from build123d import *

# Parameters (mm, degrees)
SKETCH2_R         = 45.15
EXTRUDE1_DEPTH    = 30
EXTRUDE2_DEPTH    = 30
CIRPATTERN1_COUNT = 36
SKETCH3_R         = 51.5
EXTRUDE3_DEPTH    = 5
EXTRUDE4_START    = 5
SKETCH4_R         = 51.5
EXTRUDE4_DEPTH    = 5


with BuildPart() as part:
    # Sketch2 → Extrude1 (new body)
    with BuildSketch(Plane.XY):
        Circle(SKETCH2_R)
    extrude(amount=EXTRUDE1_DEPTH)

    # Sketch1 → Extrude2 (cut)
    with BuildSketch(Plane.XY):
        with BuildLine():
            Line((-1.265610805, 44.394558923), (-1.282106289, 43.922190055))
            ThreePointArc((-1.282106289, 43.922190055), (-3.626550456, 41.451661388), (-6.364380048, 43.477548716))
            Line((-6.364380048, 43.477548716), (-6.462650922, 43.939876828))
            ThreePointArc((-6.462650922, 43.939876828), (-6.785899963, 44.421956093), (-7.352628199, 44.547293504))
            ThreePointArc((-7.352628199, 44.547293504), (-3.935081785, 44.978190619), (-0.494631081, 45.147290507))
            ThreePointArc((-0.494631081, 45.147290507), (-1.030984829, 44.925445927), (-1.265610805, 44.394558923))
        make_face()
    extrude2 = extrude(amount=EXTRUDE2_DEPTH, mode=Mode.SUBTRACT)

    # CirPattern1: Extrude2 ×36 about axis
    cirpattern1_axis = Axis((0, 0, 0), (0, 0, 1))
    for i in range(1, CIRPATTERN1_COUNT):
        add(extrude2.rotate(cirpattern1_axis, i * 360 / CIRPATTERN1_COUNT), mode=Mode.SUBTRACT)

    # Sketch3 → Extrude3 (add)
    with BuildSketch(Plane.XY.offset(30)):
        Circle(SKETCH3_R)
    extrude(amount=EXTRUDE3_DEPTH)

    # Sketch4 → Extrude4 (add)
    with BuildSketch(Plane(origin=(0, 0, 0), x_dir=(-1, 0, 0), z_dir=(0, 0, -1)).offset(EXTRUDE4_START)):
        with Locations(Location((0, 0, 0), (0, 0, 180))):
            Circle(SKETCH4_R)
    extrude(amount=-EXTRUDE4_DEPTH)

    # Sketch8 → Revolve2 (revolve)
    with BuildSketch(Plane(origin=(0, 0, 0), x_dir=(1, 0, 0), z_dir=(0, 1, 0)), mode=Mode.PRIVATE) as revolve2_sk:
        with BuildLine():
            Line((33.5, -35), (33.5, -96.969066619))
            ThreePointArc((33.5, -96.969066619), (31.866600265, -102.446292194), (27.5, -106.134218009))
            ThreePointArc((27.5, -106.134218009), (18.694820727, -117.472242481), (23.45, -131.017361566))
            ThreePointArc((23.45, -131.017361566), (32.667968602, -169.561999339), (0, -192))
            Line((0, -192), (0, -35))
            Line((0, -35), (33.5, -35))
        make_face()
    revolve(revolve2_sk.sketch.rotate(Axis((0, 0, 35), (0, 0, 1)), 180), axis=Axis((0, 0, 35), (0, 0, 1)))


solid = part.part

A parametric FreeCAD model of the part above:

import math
import FreeCAD as App
import Part
import Sketcher

V = App.Vector
Q = App.Units.Quantity

doc = App.newDocument("Part")
body = doc.addObject("PartDesign::Body", "Body")

# Sketch on XY plane
sketch1 = doc.addObject("Sketcher::SketchObject", "Sketch")
body.addObject(sketch1)
sketch1.AttachmentSupport = (doc.XY_Plane, [""])
sketch1.MapMode = "FlatFace"
sketch1.addGeometry(Part.Circle(V(0, 0, 0), V(0, 0, 1), 45.15), False)
sketch1.addConstraint([
    Sketcher.Constraint("Coincident", 0, 3, -1, 1),
    Sketcher.Constraint("Diameter", 0, 90.3),
])
pad1 = doc.addObject("PartDesign::Pad", "Pad")
body.addObject(pad1)
pad1.Profile = sketch1
pad1.Length = 30

# Sketch on XY plane
sketch2 = doc.addObject("Sketcher::SketchObject", "Sketch001")
body.addObject(sketch2)
sketch2.AttachmentSupport = (doc.XY_Plane, [""])
sketch2.MapMode = "FlatFace"
sketch2.addGeometry([
    Part.LineSegment(V(-1.282106, 43.92219, 0), V(-1.265611, 44.394559, 0)),  # 0
    Part.ArcOfCircle(Part.Circle(V(-0.486086, 44.367337, 0), V(0, 0, 1), 0.78), math.radians(90.627704), math.radians(178)),  # 1
    Part.ArcOfCircle(Part.Circle(V(0, 0, 0), V(0, 0, 1), 45.15), math.radians(90.627704), math.radians(99.372296)),  # 2
    Part.ArcOfCircle(Part.Circle(V(-7.225606, 43.777706, 0), V(0, 0, 1), 0.78), math.radians(12), math.radians(99.372296)),  # 3
    Part.LineSegment(V(-6.462651, 43.939877, 0), V(-6.36438, 43.477549, 0)),  # 4
    Part.ArcOfCircle(Part.Circle(V(-3.850541, 44.011882, 0), V(0, 0, 1), 2.57), math.radians(-168), math.radians(-2)),  # 5
], False)
sketch2.addConstraint([
    Sketcher.Constraint("Tangent", 0, 2, 1, 2),
    Sketcher.Constraint("Tangent", 1, 1, 2, 1),
    Sketcher.Constraint("Tangent", 2, 2, 3, 2),
    Sketcher.Constraint("Tangent", 3, 1, 4, 1),
    Sketcher.Constraint("Tangent", 4, 2, 5, 1),
    Sketcher.Constraint("Tangent", 5, 2, 0, 1),
    Sketcher.Constraint("Coincident", 2, 3, -1, 1),
    Sketcher.Constraint("Equal", 1, 3),
    Sketcher.Constraint("Equal", 0, 4),
    Sketcher.Constraint("Angle", 0, Q("88 deg")),
    Sketcher.Constraint("Angle", 4, Q("-78 deg")),
    Sketcher.Constraint("Radius", 1, 0.78),
    Sketcher.Constraint("Radius", 2, 45.15),
    Sketcher.Constraint("Radius", 5, 2.57),
    Sketcher.Constraint("DistanceY", 5, 2, 1, 1, 1.2251),
])
pocket1 = doc.addObject("PartDesign::Pocket", "Pocket")
body.addObject(pocket1)
pocket1.Profile = sketch2
pocket1.Length = 30
pocket1.Reversed = True
doc.recompute()

polarpattern = doc.addObject("PartDesign::PolarPattern", "PolarPattern")
body.addObject(polarpattern)
polarpattern.Originals = [pocket1]
polarpattern.Axis = (doc.Z_Axis, [""])
polarpattern.Angle = 360
polarpattern.Occurrences = 36
body.Tip = polarpattern

# Sketch on XY plane
sketch3 = doc.addObject("Sketcher::SketchObject", "Sketch002")
body.addObject(sketch3)
sketch3.AttachmentSupport = (doc.XY_Plane, [""])
sketch3.MapMode = "FlatFace"
sketch3.AttachmentOffset = App.Placement(V(0, 0, 30), App.Rotation())
sketch3.addGeometry(Part.Circle(V(0, 0, 0), V(0, 0, 1), 51.5), False)
sketch3.addConstraint([
    Sketcher.Constraint("Coincident", 0, 3, -1, 1),
    Sketcher.Constraint("Diameter", 0, 103.0),
])
pad2 = doc.addObject("PartDesign::Pad", "Pad001")
body.addObject(pad2)
pad2.Profile = sketch3
pad2.Length = 5

# Sketch on XY plane
sketch4 = doc.addObject("Sketcher::SketchObject", "Sketch003")
body.addObject(sketch4)
sketch4.AttachmentSupport = (doc.XY_Plane, [""])
sketch4.MapMode = "FlatFace"
sketch4.AttachmentOffset = App.Placement(V(0, 0, -5), App.Rotation())
sketch4.addGeometry(Part.Circle(V(0, 0, 0), V(0, 0, 1), 51.5), False)
sketch4.addConstraint([
    Sketcher.Constraint("Coincident", 0, 3, -1, 1),
    Sketcher.Constraint("Diameter", 0, 103.0),
])
pad3 = doc.addObject("PartDesign::Pad", "Pad002")
body.addObject(pad3)
pad3.Profile = sketch4
pad3.Length = 5

# Sketch on XZ plane
sketch5 = doc.addObject("Sketcher::SketchObject", "Sketch004")
body.addObject(sketch5)
sketch5.AttachmentSupport = (doc.XZ_Plane, [""])
sketch5.MapMode = "FlatFace"
sketch5.addGeometry([
    Part.LineSegment(V(33.5, 96.969067, 0), V(33.5, 35, 0)),  # 0
    Part.LineSegment(V(33.5, 35, 0), V(0, 35, 0)),  # 1
    Part.LineSegment(V(0, 35, 0), V(0, 192, 0)),  # 2
    Part.ArcOfCircle(Part.Circle(V(0, 157, 0), V(0, 0, 1), 35), math.radians(-47.932935), math.radians(90)),  # 3
    Part.ArcOfCircle(Part.Circle(V(33.5, 119.881945, 0), V(0, 0, 1), 15), math.radians(132.067065), math.radians(246.421822)),  # 4
    Part.ArcOfCircle(Part.Circle(V(23.5, 96.969067, 0), V(0, 0, 1), 10), math.radians(0), math.radians(66.421822)),  # 5
], False)
sketch5.addConstraint([
    Sketcher.Constraint("Coincident", 0, 2, 1, 1),
    Sketcher.Constraint("Coincident", 1, 2, 2, 1),
    Sketcher.Constraint("Coincident", 2, 2, 3, 2),
    Sketcher.Constraint("Tangent", 3, 1, 4, 1),
    Sketcher.Constraint("Tangent", 4, 2, 5, 2),
    Sketcher.Constraint("Tangent", 5, 1, 0, 1),
    Sketcher.Constraint("Vertical", 0),
    Sketcher.Constraint("Horizontal", 1),
    Sketcher.Constraint("Vertical", 2),
    Sketcher.Constraint("PointOnObject", 3, 3, -2),
    Sketcher.Constraint("PointOnObject", 1, 2, -2),
    Sketcher.Constraint("Vertical", 4, 3, 0, 2),
    Sketcher.Constraint("Radius", 3, 35.0),
    Sketcher.Constraint("Radius", 4, 15.0),
    Sketcher.Constraint("Radius", 5, 10.0),
    Sketcher.Constraint("DistanceY", 2, 1, 2, 2, 157.0),
    Sketcher.Constraint("DistanceX", 1, 2, 1, 1, 33.5),
    Sketcher.Constraint("DistanceY", -1, 1, 3, 3, 157.0),
])
revolution = doc.addObject("PartDesign::Revolution", "Revolution")
body.addObject(revolution)
revolution.Profile = sketch5
revolution.ReferenceAxis = (sketch5, ["V_Axis"])
revolution.Angle = 360

doc.recompute()
